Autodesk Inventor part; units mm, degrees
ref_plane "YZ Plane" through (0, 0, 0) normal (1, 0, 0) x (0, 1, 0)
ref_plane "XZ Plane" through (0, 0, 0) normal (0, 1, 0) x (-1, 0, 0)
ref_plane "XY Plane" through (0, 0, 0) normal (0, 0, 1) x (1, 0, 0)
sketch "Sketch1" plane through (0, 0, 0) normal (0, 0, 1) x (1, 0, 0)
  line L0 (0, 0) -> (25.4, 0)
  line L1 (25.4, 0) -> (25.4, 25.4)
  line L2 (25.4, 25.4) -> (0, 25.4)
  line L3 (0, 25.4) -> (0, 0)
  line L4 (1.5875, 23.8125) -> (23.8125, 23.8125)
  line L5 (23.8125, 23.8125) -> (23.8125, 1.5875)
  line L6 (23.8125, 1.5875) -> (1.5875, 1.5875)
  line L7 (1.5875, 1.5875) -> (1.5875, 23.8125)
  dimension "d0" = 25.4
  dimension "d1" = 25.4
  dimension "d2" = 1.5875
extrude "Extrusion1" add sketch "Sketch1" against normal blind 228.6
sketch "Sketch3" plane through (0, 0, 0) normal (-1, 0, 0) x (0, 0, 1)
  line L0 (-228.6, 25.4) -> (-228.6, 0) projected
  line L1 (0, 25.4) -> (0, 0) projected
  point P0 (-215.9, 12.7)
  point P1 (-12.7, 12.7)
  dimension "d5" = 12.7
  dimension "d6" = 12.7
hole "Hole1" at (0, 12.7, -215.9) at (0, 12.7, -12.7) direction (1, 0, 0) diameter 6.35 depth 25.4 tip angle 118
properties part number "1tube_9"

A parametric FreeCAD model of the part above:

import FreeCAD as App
import Part
import Sketcher
Q = App.Units.Quantity

doc = App.newDocument("Part")
params = doc.addObject("Spreadsheet::Sheet", "Params")
for row, (alias, value) in enumerate([
    ("sketch1_width", "1 in"),
    ("pad1_length", "9 in"),
    ("sketch2_diameter", "0.25 in"),
    ("hole_diameter", "0.25 in"),
    ("hole_depth", "1 in"),
], start=1):
    params.set(f"A{row}", alias)
    params.set(f"B{row}", "=" + value)
    params.setAlias(f"B{row}", alias)

body = doc.addObject("PartDesign::Body", "Body")

# Sketch on XY plane
sketch1 = body.newObject("Sketcher::SketchObject", "Sketch")
sketch1.AttachmentSupport = (doc.getObject("XY_Plane"), [""])
sketch1.MapMode = "FlatFace"
sketch1.addGeometry([
    Part.LineSegment(App.Vector(0, 25, 0), App.Vector(0, 0, 0)),  # 0
    Part.LineSegment(App.Vector(0, 0, 0), App.Vector(25, 0, 0)),  # 1
    Part.LineSegment(App.Vector(25, 0, 0), App.Vector(25, 25, 0)),  # 2
    Part.LineSegment(App.Vector(25, 25, 0), App.Vector(0, 25, 0)),  # 3
    Part.LineSegment(App.Vector(2, 2, 0), App.Vector(2, 24, 0)),  # 4
    Part.LineSegment(App.Vector(2, 24, 0), App.Vector(24, 24, 0)),  # 5
    Part.LineSegment(App.Vector(24, 24, 0), App.Vector(24, 2, 0)),  # 6
    Part.LineSegment(App.Vector(24, 2, 0), App.Vector(2, 2, 0)),  # 7
], False)
sketch1.addConstraint([
    Sketcher.Constraint("Coincident", 0, 2, 1, 1),
    Sketcher.Constraint("Coincident", 1, 2, 2, 1),
    Sketcher.Constraint("Coincident", 2, 2, 3, 1),
    Sketcher.Constraint("Coincident", 3, 2, 0, 1),
    Sketcher.Constraint("Coincident", 4, 2, 5, 1),
    Sketcher.Constraint("Coincident", 5, 2, 6, 1),
    Sketcher.Constraint("Coincident", 6, 2, 7, 1),
    Sketcher.Constraint("Coincident", 7, 2, 4, 1),
    Sketcher.Constraint("Vertical", 0),
    Sketcher.Constraint("Horizontal", 1),
    Sketcher.Constraint("Vertical", 2),
    Sketcher.Constraint("Horizontal", 3),
    Sketcher.Constraint("Vertical", 4),
    Sketcher.Constraint("Horizontal", 5),
    Sketcher.Constraint("Vertical", 6),
    Sketcher.Constraint("Horizontal", 7),
    Sketcher.Constraint("Coincident", 0, 2, -1, 1),
    Sketcher.Constraint("Equal", 3, 0),
    Sketcher.Constraint("Equal", 7, 4),
    Sketcher.Constraint("DistanceX", 1, 1, 1, 2, Q("1 in")),
    Sketcher.Constraint("DistanceX", -1, 1, 4, 2, Q("0.0625 in")),
    Sketcher.Constraint("DistanceY", -1, 1, 6, 2, Q("0.0625 in")),
    Sketcher.Constraint("DistanceY", 4, 2, 3, 2, Q("0.0625 in")),
])
sketch1.setExpression("Constraints[19]", "Params.sketch1_width")
pad1 = body.newObject("PartDesign::Pad", "Pad")
pad1.Profile = sketch1
pad1.setExpression("Length", "Params.pad1_length")
pad1.Reversed = True

# Sketch on YZ plane
sketch2 = body.newObject("Sketcher::SketchObject", "Sketch001")
sketch2.AttachmentSupport = (doc.getObject("YZ_Plane"), [""])
sketch2.MapMode = "FlatFace"
sketch2.addGeometry([
    Part.Circle(App.Vector(12.7, -215.9, 0), App.Vector(0, 0, 1), 3.2),
    Part.Circle(App.Vector(12.7, -12.7, 0), App.Vector(0, 0, 1), 3.2),
], False)
sketch2.addConstraint([
    Sketcher.Constraint("Equal", 0, 1),
    Sketcher.Constraint("Vertical", 0, 3, 1, 3),
    Sketcher.Constraint("Diameter", 0, Q("0.25 in")),
    Sketcher.Constraint("DistanceY", 0, 3, 1, 3, Q("8 in")),
    Sketcher.Constraint("DistanceX", -1, 1, 0, 3, Q("0.5 in")),
    Sketcher.Constraint("DistanceY", 0, 3, -1, 1, Q("8.5 in")),
])
sketch2.setExpression("Constraints[2]", "Params.sketch2_diameter")
doc.recompute()
hole = body.newObject("PartDesign::Hole", "Hole")
hole.Profile = sketch2
hole.ThreadType = "None"
hole.setExpression("Diameter", "Params.hole_diameter")
hole.DepthType = "Dimension"
hole.setExpression("Depth", "Params.hole_depth")
hole.DrillPoint = "Angled"
hole.DrillPointAngle = 118
hole.Reversed = True

doc.recompute()
